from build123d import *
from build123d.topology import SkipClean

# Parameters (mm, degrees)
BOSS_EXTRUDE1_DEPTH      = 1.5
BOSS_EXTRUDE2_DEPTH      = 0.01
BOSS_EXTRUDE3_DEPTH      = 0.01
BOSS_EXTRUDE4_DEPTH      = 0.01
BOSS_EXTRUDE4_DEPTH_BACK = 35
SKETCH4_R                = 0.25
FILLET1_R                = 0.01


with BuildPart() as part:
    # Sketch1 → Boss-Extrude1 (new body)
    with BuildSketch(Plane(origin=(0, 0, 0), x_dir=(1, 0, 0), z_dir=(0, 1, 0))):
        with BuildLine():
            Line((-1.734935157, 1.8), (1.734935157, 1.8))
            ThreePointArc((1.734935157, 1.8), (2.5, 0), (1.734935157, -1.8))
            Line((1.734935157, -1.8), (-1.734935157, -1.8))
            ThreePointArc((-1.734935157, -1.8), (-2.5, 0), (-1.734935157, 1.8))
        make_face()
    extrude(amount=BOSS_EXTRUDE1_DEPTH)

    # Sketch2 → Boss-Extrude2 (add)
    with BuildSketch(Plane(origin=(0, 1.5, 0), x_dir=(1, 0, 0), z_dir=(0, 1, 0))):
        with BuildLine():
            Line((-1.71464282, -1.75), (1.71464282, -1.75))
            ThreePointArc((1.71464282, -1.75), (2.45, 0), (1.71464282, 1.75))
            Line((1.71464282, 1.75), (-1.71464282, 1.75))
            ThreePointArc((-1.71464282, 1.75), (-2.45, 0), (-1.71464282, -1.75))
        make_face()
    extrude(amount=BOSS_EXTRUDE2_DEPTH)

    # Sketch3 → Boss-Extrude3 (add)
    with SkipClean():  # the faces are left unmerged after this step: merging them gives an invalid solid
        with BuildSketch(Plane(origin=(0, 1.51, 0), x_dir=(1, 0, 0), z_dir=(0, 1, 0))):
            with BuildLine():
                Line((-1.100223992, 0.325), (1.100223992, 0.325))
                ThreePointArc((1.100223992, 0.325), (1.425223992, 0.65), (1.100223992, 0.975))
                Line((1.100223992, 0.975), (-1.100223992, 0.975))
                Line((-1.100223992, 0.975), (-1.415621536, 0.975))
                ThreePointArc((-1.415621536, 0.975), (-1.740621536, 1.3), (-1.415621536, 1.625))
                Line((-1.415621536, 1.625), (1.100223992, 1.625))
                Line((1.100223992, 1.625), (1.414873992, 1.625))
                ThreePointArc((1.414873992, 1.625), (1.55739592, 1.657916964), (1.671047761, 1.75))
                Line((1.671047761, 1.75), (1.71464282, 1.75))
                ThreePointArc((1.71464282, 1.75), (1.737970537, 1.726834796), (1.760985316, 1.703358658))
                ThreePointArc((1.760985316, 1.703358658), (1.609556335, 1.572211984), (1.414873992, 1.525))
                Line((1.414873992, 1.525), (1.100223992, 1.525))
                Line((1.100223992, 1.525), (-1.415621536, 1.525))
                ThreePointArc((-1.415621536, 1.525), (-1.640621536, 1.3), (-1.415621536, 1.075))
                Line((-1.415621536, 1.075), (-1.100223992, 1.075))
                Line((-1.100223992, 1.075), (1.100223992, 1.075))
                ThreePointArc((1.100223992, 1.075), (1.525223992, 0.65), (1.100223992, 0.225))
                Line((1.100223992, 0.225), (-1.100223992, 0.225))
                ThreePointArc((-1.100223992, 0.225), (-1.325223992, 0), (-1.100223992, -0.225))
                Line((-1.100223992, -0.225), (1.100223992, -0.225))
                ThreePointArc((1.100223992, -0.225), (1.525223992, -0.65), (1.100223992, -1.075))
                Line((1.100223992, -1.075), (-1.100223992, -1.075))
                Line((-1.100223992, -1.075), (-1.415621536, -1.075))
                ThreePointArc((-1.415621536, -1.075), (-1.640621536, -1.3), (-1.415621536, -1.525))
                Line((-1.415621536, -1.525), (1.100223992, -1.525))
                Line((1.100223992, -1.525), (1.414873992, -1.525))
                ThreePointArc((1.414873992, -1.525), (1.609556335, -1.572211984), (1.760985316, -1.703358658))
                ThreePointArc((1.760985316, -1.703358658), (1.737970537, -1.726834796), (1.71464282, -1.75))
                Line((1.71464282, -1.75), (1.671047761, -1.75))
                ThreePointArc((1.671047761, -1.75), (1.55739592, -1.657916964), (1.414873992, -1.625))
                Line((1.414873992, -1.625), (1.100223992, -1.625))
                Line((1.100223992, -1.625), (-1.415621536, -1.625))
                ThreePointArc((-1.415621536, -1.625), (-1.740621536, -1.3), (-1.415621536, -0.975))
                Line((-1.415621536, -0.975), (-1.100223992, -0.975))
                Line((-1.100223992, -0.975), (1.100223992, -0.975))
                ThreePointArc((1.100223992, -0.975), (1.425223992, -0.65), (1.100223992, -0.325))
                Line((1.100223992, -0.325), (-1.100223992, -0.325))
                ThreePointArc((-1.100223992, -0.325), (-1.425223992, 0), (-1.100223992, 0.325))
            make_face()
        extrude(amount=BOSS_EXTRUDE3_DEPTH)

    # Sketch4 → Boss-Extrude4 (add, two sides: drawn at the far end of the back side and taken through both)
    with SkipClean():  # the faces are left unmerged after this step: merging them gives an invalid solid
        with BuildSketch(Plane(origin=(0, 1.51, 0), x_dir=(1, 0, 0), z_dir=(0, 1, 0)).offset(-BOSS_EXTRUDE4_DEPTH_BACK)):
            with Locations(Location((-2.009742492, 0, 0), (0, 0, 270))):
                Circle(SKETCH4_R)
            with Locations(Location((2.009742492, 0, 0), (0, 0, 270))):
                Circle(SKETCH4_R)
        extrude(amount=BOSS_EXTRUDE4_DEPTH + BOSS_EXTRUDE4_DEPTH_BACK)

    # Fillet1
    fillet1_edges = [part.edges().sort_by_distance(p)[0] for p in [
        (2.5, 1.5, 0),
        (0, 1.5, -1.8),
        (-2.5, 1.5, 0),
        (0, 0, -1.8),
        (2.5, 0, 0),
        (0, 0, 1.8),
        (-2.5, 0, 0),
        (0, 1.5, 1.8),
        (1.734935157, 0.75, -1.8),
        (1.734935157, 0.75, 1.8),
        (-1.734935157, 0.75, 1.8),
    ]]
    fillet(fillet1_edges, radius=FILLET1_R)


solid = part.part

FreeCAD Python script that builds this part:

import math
import FreeCAD as App
import Part
import Sketcher

V = App.Vector
Q = App.Units.Quantity


def edges_at(feature, points):
    """Names of the edges that pass closest to the given points."""
    edges = feature.Shape.Edges
    near = lambda p: min(range(len(edges)), key=lambda i: edges[i].distToShape(Part.Vertex(*p))[0])
    return sorted({f"Edge{near(p) + 1}" for p in points})

doc = App.newDocument("Part")
body = doc.addObject("PartDesign::Body", "Body")

sketch1 = doc.addObject("Sketcher::SketchObject", "Sketch")
body.addObject(sketch1)
sketch1.AttachmentSupport = (doc.XZ_Plane, [""])
sketch1.MapMode = "FlatFace"
sketch1.addGeometry([
    Part.LineSegment(V(1.7, -1.8, 0), V(-1.7, -1.8, 0)),
    Part.ArcOfCircle(Part.Circle(V(0, 0, 0), V(0, 0, 1), 2.5), math.radians(134), math.radians(226)),
    Part.LineSegment(V(-1.7, 1.8, 0), V(1.7, 1.8, 0)),
    Part.ArcOfCircle(Part.Circle(V(0, 0, 0), V(0, 0, 1), 2.5), math.radians(-46), math.radians(46)),
], False)
sketch1.addConstraint([
    Sketcher.Constraint("Coincident", 0, 2, 1, 2),
    Sketcher.Constraint("Coincident", 1, 1, 2, 1),
    Sketcher.Constraint("Coincident", 2, 2, 3, 2),
    Sketcher.Constraint("Coincident", 3, 1, 0, 1),
    Sketcher.Constraint("Horizontal", 0),
    Sketcher.Constraint("Horizontal", 2),
    Sketcher.Constraint("Coincident", 1, 3, -1, 1),
    Sketcher.Constraint("Coincident", 3, 3, -1, 1),
    Sketcher.Constraint("Equal", 1, 3),
    Sketcher.Constraint("Vertical", 0, 2, 1, 1),
    Sketcher.Constraint("Radius", 1, Q("2.5 mm")),
    Sketcher.Constraint("DistanceY", 0, 2, -1, 1, Q("1.8 mm")),
])
pad1 = doc.addObject("PartDesign::Pad", "Pad")
body.addObject(pad1)
pad1.Profile = sketch1
pad1.Length = 1.5
pad1.Reversed = True

sketch2 = doc.addObject("Sketcher::SketchObject", "Sketch001")
body.addObject(sketch2)
sketch2.AttachmentSupport = (doc.XZ_Plane, [""])
sketch2.MapMode = "FlatFace"
sketch2.AttachmentOffset = App.Placement(V(0, 0, -1.5), App.Rotation())
sketch2.addGeometry([
    Part.LineSegment(V(-1.7, 1.8, 0), V(1.7, 1.8, 0)),
    Part.ArcOfCircle(Part.Circle(V(0, 0, 0), V(0, 0, 1), 2.5), math.radians(-46), math.radians(46)),
    Part.LineSegment(V(1.7, -1.8, 0), V(-1.7, -1.8, 0)),
    Part.ArcOfCircle(Part.Circle(V(0, 0, 0), V(0, 0, 1), 2.5), math.radians(134), math.radians(226)),
], False)
sketch2.addConstraint([
    Sketcher.Constraint("Coincident", 0, 2, 1, 2),
    Sketcher.Constraint("Coincident", 1, 1, 2, 1),
    Sketcher.Constraint("Coincident", 2, 2, 3, 2),
    Sketcher.Constraint("Coincident", 3, 1, 0, 1),
    Sketcher.Constraint("Horizontal", 0),
    Sketcher.Constraint("Horizontal", 2),
    Sketcher.Constraint("Coincident", 1, 3, -1, 1),
    Sketcher.Constraint("Coincident", 3, 3, -1, 1),
    Sketcher.Constraint("Equal", 1, 3),
    Sketcher.Constraint("Vertical", 0, 2, 1, 1),
    Sketcher.Constraint("Radius", 1, Q("2.45 mm")),
    Sketcher.Constraint("DistanceY", 1, 1, 0, 2, Q("3.5 mm")),
])
pad2 = doc.addObject("PartDesign::Pad", "Pad001")
body.addObject(pad2)
pad2.Profile = sketch2
pad2.Length = 0.01
pad2.Reversed = True

sketch3 = doc.addObject("Sketcher::SketchObject", "Sketch002")
body.addObject(sketch3)
sketch3.AttachmentSupport = (doc.XZ_Plane, [""])
sketch3.MapMode = "FlatFace"
sketch3.AttachmentOffset = App.Placement(V(0, 0, -1.51), App.Rotation())
sketch3.addGeometry([
    Part.LineSegment(V(1.1, -0.325, 0), V(-1.1, -0.325, 0)),
    Part.ArcOfCircle(Part.Circle(V(-1.1, 0, 0), V(0, 0, 1), 0.325), math.radians(90), math.radians(270)),
    Part.LineSegment(V(-1.1, 0.325, 0), V(1.1, 0.325, 0)),
    Part.ArcOfCircle(Part.Circle(V(1.1, 0.65, 0), V(0, 0, 1), 0.325), math.radians(-90), math.radians(90)),
    Part.LineSegment(V(1.1, 0.975, 0), V(-1.416, 0.975, 0)),
    Part.ArcOfCircle(Part.Circle(V(-1.416, 1.3, 0), V(0, 0, 1), 0.325), math.radians(90), math.radians(270)),
    Part.LineSegment(V(-1.416, 1.625, 0), V(1.415, 1.625, 0)),
    Part.ArcOfCircle(Part.Circle(V(1.415, 1.95, 0), V(0, 0, 1), 0.325), math.radians(-90), math.radians(-38)),
    Part.LineSegment(V(1.671, 1.75, 0), V(1.715, 1.75, 0)),
    Part.ArcOfCircle(Part.Circle(V(0, 0, 0), V(0, 0, 1), 2.45), math.radians(44.05), math.radians(45.58)),
    Part.ArcOfCircle(Part.Circle(V(1.415, 1.95, 0), V(0, 0, 1), 0.425), math.radians(-90), math.radians(-35)),
    Part.LineSegment(V(1.415, 1.525, 0), V(-1.416, 1.525, 0)),
    Part.ArcOfCircle(Part.Circle(V(-1.416, 1.3, 0), V(0, 0, 1), 0.225), math.radians(90), math.radians(270)),
    Part.LineSegment(V(-1.416, 1.075, 0), V(1.1, 1.075, 0)),
    Part.ArcOfCircle(Part.Circle(V(1.1, 0.65, 0), V(0, 0, 1), 0.425), math.radians(-90), math.radians(90)),
    Part.LineSegment(V(1.1, 0.225, 0), V(-1.1, 0.225, 0)),
    Part.ArcOfCircle(Part.Circle(V(-1.1, 0, 0), V(0, 0, 1), 0.225), math.radians(90), math.radians(270)),
    Part.LineSegment(V(-1.1, -0.225, 0), V(1.1, -0.225, 0)),
    Part.ArcOfCircle(Part.Circle(V(1.1, -0.65, 0), V(0, 0, 1), 0.425), math.radians(-90), math.radians(90)),
    Part.LineSegment(V(1.1, -1.075, 0), V(-1.416, -1.075, 0)),
    Part.ArcOfCircle(Part.Circle(V(-1.416, -1.3, 0), V(0, 0, 1), 0.225), math.radians(90), math.radians(270)),
    Part.LineSegment(V(-1.416, -1.525, 0), V(1.415, -1.525, 0)),
    Part.ArcOfCircle(Part.Circle(V(1.415, -1.95, 0), V(0, 0, 1), 0.425), math.radians(35), math.radians(90)),
    Part.ArcOfCircle(Part.Circle(V(0, 0, 0), V(0, 0, 1), 2.45), math.radians(-45.58), math.radians(-44.05)),
    Part.LineSegment(V(1.715, -1.75, 0), V(1.671, -1.75, 0)),
    Part.ArcOfCircle(Part.Circle(V(1.415, -1.95, 0), V(0, 0, 1), 0.325), math.radians(38), math.radians(90)),
    Part.LineSegment(V(1.415, -1.625, 0), V(-1.416, -1.625, 0)),
    Part.ArcOfCircle(Part.Circle(V(-1.416, -1.3, 0), V(0, 0, 1), 0.325), math.radians(90), math.radians(270)),
    Part.LineSegment(V(-1.416, -0.975, 0), V(1.1, -0.975, 0)),
    Part.ArcOfCircle(Part.Circle(V(1.1, -0.65, 0), V(0, 0, 1), 0.325), math.radians(-90), math.radians(90)),
], False)
sketch3.addConstraint([
    Sketcher.Constraint("Tangent", 0, 2, 1, 2),
    Sketcher.Constraint("Tangent", 1, 1, 2, 1),
    Sketcher.Constraint("Tangent", 2, 2, 3, 1),
    Sketcher.Constraint("Tangent", 3, 2, 4, 1),
    Sketcher.Constraint("Tangent", 4, 2, 5, 2),
    Sketcher.Constraint("Tangent", 5, 1, 6, 1),
    Sketcher.Constraint("Tangent", 6, 2, 7, 1),
    Sketcher.Constraint("Coincident", 7, 2, 8, 1),
    Sketcher.Constraint("Coincident", 8, 2, 9, 2),
    Sketcher.Constraint("Coincident", 9, 1, 10, 2),
    Sketcher.Constraint("Tangent", 10, 1, 11, 1),
    Sketcher.Constraint("Tangent", 11, 2, 12, 1),
    Sketcher.Constraint("Tangent", 12, 2, 13, 1),
    Sketcher.Constraint("Tangent", 13, 2, 14, 2),
    Sketcher.Constraint("Tangent", 14, 1, 15, 1),
    Sketcher.Constraint("Tangent", 15, 2, 16, 1),
    Sketcher.Constraint("Tangent", 16, 2, 17, 1),
    Sketcher.Constraint("Tangent", 17, 2, 18, 2),
    Sketcher.Constraint("Tangent", 18, 1, 19, 1),
    Sketcher.Constraint("Tangent", 19, 2, 20, 1),
    Sketcher.Constraint("Tangent", 20, 2, 21, 1),
    Sketcher.Constraint("Tangent", 21, 2, 22, 2),
    Sketcher.Constraint("Coincident", 22, 1, 23, 2),
    Sketcher.Constraint("Coincident", 23, 1, 24, 1),
    Sketcher.Constraint("Coincident", 24, 2, 25, 1),
    Sketcher.Constraint("Tangent", 25, 2, 26, 1),
    Sketcher.Constraint("Tangent", 26, 2, 27, 2),
    Sketcher.Constraint("Tangent", 27, 1, 28, 1),
    Sketcher.Constraint("Tangent", 28, 2, 29, 1),
    Sketcher.Constraint("Tangent", 29, 2, 0, 1),
    Sketcher.Constraint("Horizontal", 0),
    Sketcher.Constraint("Horizontal", 2),
    Sketcher.Constraint("Horizontal", 4),
    Sketcher.Constraint("Horizontal", 6),
    Sketcher.Constraint("Horizontal", 8),
    Sketcher.Constraint("Horizontal", 11),
    Sketcher.Constraint("Horizontal", 13),
    Sketcher.Constraint("Horizontal", 15),
    Sketcher.Constraint("Horizontal", 17),
    Sketcher.Constraint("Horizontal", 19),
    Sketcher.Constraint("Horizontal", 21),
    Sketcher.Constraint("Horizontal", 24),
    Sketcher.Constraint("Horizontal", 26),
    Sketcher.Constraint("Horizontal", 28),
    Sketcher.Constraint("Coincident", 9, 3, -1, 1),
    Sketcher.Constraint("Coincident", 23, 3, -1, 1),
    Sketcher.Constraint("Coincident", 10, 3, 7, 3),
    Sketcher.Constraint("Coincident", 12, 3, 5, 3),
    Sketcher.Constraint("Coincident", 14, 3, 3, 3),
    Sketcher.Constraint("Coincident", 16, 3, 1, 3),
    Sketcher.Constraint("Coincident", 25, 3, 22, 3),
    Sketcher.Constraint("Coincident", 27, 3, 20, 3),
    Sketcher.Constraint("Coincident", 29, 3, 18, 3),
    Sketcher.Constraint("Equal", 1, 3),
    Sketcher.Constraint("Equal", 3, 5),
    Sketcher.Constraint("Equal", 5, 7),
    Sketcher.Constraint("Equal", 14, 18),
    Sketcher.Constraint("Equal", 16, 20),
    Sketcher.Constraint("Equal", 18, 22),
    Sketcher.Constraint("Equal", 9, 23),
    Sketcher.Constraint("Symmetric", 0, 2, 2, 2, -1, 1),
    Sketcher.Constraint("Symmetric", 7, 2, 24, 2, -1),
    Sketcher.Constraint("Vertical", 14, 3, 18, 3),
    Sketcher.Constraint("Vertical", 12, 3, 20, 3),
    Sketcher.Constraint("Radius", 9, Q("2.450001 mm")),
    Sketcher.Constraint("Radius", 1, Q("0.325 mm")),
    Sketcher.Constraint("Radius", 10, Q("0.425 mm")),
    Sketcher.Constraint("DistanceY", 7, 2, 7, 3, Q("0.2 mm")),
    Sketcher.Constraint("DistanceX", 0, 2, 0, 1, Q("2.200448 mm")),
    Sketcher.Constraint("DistanceX", 4, 2, 4, 1, Q("2.515846 mm")),
    Sketcher.Constraint("DistanceX", 6, 1, 6, 2, Q("2.830496 mm")),
])
pad3 = doc.addObject("PartDesign::Pad", "Pad002")
body.addObject(pad3)
pad3.Profile = sketch3
pad3.Length = 0.01
pad3.Reversed = True

sketch4 = doc.addObject("Sketcher::SketchObject", "Sketch003")
body.addObject(sketch4)
sketch4.AttachmentSupport = (doc.XZ_Plane, [""])
sketch4.MapMode = "FlatFace"
sketch4.AttachmentOffset = App.Placement(V(0, 0, -1.51), App.Rotation())
sketch4.addGeometry([
    Part.Circle(V(-2.01, 0, 0), V(0, 0, 1), 0.25),
    Part.Circle(V(2.01, 0, 0), V(0, 0, 1), 0.25),
], False)
sketch4.addConstraint([
    Sketcher.Constraint("Equal", 0, 1),
    Sketcher.Constraint("Symmetric", 0, 3, 1, 3, -1, 1),
    Sketcher.Constraint("PointOnObject", 0, 3, -1),
    Sketcher.Constraint("Diameter", 0, Q("0.5 mm")),
    Sketcher.Constraint("DistanceX", 0, 3, -1, 1, Q("2.009742 mm")),
])
pad4 = doc.addObject("PartDesign::Pad", "Pad003")
body.addObject(pad4)
pad4.Profile = sketch4
pad4.Type = "TwoLengths"
pad4.Length = 0.01
pad4.Length2 = 35
pad4.Reversed = True
doc.recompute()

fillet = doc.addObject("PartDesign::Fillet", "Fillet")
body.addObject(fillet)
fillet.Base = (pad4, edges_at(pad4, [
    (2.5, 1.5, 0),
    (0, 1.5, -1.8),
    (-2.5, 1.5, 0),
    (0, 0, -1.8),
    (2.5, 0, 0),
    (0, 0, 1.8),
    (-2.5, 0, 0),
    (0, 1.5, 1.8),
    (1.735, 0.75, -1.8),
    (1.735, 0.75, 1.8),
    (-1.735, 0.75, 1.8),
]))
fillet.Radius = 0.01

doc.recompute()
